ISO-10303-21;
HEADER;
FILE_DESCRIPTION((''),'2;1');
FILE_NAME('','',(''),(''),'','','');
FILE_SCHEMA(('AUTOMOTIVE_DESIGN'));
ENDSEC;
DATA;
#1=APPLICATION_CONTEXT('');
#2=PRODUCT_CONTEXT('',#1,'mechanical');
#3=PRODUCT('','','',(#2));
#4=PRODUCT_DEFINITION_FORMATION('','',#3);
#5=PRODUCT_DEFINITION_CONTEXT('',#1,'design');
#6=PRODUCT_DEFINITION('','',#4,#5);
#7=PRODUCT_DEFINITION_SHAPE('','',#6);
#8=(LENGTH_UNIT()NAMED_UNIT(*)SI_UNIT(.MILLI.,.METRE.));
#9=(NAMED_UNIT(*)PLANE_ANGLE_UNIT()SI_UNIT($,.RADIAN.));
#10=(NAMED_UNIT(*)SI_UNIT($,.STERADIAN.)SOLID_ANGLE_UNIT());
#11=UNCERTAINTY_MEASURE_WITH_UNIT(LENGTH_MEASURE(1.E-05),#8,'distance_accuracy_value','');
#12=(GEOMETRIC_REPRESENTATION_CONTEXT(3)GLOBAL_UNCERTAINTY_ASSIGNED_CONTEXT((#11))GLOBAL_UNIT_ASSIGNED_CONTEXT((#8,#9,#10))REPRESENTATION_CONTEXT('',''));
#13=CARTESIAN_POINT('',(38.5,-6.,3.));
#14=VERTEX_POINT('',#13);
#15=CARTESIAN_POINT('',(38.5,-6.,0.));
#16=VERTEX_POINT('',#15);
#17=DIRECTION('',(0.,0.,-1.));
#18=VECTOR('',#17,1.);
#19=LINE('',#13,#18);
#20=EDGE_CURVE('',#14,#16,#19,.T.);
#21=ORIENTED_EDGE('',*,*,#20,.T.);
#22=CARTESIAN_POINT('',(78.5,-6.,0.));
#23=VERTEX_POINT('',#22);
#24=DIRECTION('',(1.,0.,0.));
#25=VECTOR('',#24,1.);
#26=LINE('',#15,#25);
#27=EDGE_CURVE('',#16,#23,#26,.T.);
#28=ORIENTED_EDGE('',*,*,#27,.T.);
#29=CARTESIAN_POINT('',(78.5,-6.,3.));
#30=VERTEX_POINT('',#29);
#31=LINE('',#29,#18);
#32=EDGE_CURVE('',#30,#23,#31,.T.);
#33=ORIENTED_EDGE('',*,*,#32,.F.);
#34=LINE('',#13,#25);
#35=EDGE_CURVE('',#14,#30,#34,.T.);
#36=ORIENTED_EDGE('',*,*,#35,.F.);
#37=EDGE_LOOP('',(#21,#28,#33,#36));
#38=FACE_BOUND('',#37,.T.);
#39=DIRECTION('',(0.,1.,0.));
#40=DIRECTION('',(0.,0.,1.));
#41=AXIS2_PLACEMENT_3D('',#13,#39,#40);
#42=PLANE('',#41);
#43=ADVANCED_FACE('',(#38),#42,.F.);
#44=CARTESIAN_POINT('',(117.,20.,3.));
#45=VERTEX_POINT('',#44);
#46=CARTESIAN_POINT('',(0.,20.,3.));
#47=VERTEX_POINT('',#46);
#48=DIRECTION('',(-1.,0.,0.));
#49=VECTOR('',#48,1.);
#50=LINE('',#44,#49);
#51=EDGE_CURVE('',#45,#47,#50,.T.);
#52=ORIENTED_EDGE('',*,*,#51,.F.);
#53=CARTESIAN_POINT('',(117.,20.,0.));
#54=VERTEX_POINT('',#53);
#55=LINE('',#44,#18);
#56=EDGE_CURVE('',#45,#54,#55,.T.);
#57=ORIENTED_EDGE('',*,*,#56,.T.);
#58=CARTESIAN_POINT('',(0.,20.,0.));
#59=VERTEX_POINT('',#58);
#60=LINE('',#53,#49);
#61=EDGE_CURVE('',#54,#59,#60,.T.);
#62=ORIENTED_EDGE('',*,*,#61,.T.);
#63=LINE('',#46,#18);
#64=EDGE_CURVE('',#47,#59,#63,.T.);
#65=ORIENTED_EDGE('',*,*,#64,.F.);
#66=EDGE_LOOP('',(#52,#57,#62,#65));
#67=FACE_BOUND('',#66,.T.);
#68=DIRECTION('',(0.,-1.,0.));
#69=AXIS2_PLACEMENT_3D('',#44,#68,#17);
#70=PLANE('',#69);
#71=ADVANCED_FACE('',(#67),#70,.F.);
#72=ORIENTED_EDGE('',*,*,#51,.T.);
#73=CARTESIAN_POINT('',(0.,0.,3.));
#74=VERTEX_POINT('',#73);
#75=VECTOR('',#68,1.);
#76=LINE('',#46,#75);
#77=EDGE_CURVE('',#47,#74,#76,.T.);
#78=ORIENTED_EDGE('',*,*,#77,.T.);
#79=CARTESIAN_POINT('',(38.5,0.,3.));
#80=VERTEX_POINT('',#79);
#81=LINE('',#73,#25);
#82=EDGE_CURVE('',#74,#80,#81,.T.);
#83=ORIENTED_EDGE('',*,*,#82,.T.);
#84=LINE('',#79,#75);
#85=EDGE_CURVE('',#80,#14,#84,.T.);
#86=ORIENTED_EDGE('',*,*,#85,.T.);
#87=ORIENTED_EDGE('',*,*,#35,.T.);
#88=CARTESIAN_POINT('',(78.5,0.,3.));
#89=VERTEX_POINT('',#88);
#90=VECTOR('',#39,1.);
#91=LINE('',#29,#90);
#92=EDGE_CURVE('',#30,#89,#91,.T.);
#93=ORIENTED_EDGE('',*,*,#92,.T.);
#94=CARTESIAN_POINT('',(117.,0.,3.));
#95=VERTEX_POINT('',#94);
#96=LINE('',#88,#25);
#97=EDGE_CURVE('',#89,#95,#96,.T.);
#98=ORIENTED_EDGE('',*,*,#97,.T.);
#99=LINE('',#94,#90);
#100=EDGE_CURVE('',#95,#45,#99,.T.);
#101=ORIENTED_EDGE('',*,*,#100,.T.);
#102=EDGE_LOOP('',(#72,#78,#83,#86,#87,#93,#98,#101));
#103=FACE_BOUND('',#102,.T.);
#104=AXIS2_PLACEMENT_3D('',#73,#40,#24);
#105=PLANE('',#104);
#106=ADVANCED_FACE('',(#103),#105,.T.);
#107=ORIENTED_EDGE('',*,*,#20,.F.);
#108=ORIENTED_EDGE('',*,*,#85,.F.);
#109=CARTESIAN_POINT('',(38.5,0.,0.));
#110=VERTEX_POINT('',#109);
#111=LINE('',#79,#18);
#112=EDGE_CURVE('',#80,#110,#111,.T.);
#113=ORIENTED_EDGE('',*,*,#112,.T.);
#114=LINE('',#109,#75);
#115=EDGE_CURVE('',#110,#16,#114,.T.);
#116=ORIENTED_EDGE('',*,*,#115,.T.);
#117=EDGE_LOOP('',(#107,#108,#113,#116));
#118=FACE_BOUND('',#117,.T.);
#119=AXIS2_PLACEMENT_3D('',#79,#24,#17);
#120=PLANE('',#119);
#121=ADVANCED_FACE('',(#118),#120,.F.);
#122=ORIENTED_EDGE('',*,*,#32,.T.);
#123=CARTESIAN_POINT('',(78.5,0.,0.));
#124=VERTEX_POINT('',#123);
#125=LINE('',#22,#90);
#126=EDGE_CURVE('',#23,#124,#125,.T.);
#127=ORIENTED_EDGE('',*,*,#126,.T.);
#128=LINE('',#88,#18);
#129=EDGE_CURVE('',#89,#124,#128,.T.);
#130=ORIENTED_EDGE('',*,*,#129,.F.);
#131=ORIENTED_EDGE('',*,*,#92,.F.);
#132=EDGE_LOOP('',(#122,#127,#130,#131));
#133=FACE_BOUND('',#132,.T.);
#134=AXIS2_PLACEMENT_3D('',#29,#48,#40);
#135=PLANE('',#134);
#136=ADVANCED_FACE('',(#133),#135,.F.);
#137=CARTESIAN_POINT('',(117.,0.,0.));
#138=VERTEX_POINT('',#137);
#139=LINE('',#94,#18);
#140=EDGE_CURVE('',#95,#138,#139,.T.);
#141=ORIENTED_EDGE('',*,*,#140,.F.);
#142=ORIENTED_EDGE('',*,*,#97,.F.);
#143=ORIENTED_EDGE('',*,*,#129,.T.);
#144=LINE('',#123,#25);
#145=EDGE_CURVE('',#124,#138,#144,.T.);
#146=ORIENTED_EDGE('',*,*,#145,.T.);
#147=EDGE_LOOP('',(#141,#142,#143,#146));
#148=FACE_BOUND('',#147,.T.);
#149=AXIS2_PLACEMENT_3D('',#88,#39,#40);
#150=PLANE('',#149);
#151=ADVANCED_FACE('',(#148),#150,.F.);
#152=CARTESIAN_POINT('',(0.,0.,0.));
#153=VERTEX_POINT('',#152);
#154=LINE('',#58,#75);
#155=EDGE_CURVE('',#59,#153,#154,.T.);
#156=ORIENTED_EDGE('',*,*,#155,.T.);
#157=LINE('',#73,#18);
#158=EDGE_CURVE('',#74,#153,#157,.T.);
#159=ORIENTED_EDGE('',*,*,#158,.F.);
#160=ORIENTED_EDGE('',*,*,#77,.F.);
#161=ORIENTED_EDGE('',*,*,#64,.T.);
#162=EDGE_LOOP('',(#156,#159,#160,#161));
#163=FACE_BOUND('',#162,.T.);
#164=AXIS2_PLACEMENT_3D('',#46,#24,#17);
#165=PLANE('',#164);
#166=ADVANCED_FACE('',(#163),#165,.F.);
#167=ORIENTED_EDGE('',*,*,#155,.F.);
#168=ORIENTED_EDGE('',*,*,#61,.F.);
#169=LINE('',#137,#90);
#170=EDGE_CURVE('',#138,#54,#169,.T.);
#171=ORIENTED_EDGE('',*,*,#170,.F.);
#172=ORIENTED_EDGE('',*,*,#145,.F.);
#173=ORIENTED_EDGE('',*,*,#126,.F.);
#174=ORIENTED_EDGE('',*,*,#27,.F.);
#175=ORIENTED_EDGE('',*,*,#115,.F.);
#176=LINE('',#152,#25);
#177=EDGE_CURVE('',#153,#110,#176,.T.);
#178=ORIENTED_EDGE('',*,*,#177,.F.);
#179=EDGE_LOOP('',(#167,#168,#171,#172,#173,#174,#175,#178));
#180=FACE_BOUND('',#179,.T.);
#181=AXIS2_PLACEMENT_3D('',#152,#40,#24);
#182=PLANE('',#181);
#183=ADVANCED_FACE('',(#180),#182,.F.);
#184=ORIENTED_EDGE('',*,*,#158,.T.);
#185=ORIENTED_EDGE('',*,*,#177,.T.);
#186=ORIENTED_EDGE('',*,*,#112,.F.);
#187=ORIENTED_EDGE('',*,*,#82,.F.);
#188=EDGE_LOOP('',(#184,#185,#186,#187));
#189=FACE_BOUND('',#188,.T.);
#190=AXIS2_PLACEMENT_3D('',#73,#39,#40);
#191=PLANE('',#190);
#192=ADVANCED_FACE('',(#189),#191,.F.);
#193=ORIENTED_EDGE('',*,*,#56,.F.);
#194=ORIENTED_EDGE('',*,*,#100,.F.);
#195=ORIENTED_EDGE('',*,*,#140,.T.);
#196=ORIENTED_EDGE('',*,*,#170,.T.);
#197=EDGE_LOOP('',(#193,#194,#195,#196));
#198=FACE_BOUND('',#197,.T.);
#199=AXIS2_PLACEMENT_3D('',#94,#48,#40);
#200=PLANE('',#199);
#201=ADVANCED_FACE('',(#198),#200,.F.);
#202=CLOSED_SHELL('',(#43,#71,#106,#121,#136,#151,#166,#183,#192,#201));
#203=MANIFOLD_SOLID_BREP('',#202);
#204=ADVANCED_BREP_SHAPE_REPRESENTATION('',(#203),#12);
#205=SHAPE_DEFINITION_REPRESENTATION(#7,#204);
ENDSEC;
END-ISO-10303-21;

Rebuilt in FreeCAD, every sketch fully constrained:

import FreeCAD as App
import Part
import Sketcher

V = App.Vector
Q = App.Units.Quantity

doc = App.newDocument("Part")
params = doc.addObject("Spreadsheet::Sheet", "Params")
for row, (alias, value) in enumerate([
    ("sketch1_width", "40 mm"),
    ("sketch1_width2", "117 mm"),
    ("sketch1_height", "6 mm"),
    ("sketch1_height2", "20 mm"),
    ("pad1_length", "3 mm"),
], start=1):
    params.set(f"A{row}", alias)
    params.set(f"B{row}", "=" + value)
    params.setAlias(f"B{row}", alias)

body = doc.addObject("PartDesign::Body", "Body")

# Sketch on XY plane
sketch1 = doc.addObject("Sketcher::SketchObject", "Sketch")
body.addObject(sketch1)
sketch1.AttachmentSupport = (doc.XY_Plane, [""])
sketch1.MapMode = "FlatFace"
sketch1.addGeometry(Part.LineSegment(V(0, 0, 0), V(38.5, 0, 0)), False)
sketch1.addGeometry(Part.LineSegment(V(38.5, 0, 0), V(38.5, -6, 0)), False)
sketch1.addGeometry(Part.LineSegment(V(38.5, -6, 0), V(78.5, -6, 0)), False)
sketch1.addGeometry(Part.LineSegment(V(78.5, -6, 0), V(78.5, 0, 0)), False)
sketch1.addGeometry(Part.LineSegment(V(78.5, 0, 0), V(117, 0, 0)), False)
sketch1.addGeometry(Part.LineSegment(V(117, 0, 0), V(117, 20, 0)), False)
sketch1.addGeometry(Part.LineSegment(V(117, 20, 0), V(0, 20, 0)), False)
sketch1.addGeometry(Part.LineSegment(V(0, 20, 0), V(0, 0, 0)), False)
sketch1.addConstraint(Sketcher.Constraint("Coincident", 0, 2, 1, 1))
sketch1.addConstraint(Sketcher.Constraint("Coincident", 1, 2, 2, 1))
sketch1.addConstraint(Sketcher.Constraint("Coincident", 2, 2, 3, 1))
sketch1.addConstraint(Sketcher.Constraint("Coincident", 3, 2, 4, 1))
sketch1.addConstraint(Sketcher.Constraint("Coincident", 4, 2, 5, 1))
sketch1.addConstraint(Sketcher.Constraint("Coincident", 5, 2, 6, 1))
sketch1.addConstraint(Sketcher.Constraint("Coincident", 6, 2, 7, 1))
sketch1.addConstraint(Sketcher.Constraint("Coincident", 7, 2, 0, 1))
sketch1.addConstraint(Sketcher.Constraint("Horizontal", 0))
sketch1.addConstraint(Sketcher.Constraint("Vertical", 1))
sketch1.addConstraint(Sketcher.Constraint("Horizontal", 2))
sketch1.addConstraint(Sketcher.Constraint("Vertical", 3))
sketch1.addConstraint(Sketcher.Constraint("Horizontal", 4))
sketch1.addConstraint(Sketcher.Constraint("Vertical", 5))
sketch1.addConstraint(Sketcher.Constraint("Horizontal", 6))
sketch1.addConstraint(Sketcher.Constraint("Vertical", 7))
sketch1.addConstraint(Sketcher.Constraint("Coincident", 7, 2, -1, 1))
sketch1.addConstraint(Sketcher.Constraint("PointOnObject", 3, 2, -1))
sketch1.addConstraint(Sketcher.Constraint("Equal", 0, 4))
sketch1.addConstraint(Sketcher.Constraint("DistanceX", 2, 1, 2, 2, Q("40 mm")))
sketch1.addConstraint(Sketcher.Constraint("DistanceX", 6, 2, 6, 1, Q("117 mm")))
sketch1.addConstraint(Sketcher.Constraint("DistanceY", 1, 2, 1, 1, Q("6 mm")))
sketch1.addConstraint(Sketcher.Constraint("DistanceY", 5, 1, 5, 2, Q("20 mm")))
sketch1.setExpression("Constraints[19]", "Params.sketch1_width")
sketch1.setExpression("Constraints[20]", "Params.sketch1_width2")
sketch1.setExpression("Constraints[21]", "Params.sketch1_height")
sketch1.setExpression("Constraints[22]", "Params.sketch1_height2")
pad1 = doc.addObject("PartDesign::Pad", "Pad")
body.addObject(pad1)
pad1.Profile = sketch1
pad1.setExpression("Length", "Params.pad1_length")

doc.recompute()
